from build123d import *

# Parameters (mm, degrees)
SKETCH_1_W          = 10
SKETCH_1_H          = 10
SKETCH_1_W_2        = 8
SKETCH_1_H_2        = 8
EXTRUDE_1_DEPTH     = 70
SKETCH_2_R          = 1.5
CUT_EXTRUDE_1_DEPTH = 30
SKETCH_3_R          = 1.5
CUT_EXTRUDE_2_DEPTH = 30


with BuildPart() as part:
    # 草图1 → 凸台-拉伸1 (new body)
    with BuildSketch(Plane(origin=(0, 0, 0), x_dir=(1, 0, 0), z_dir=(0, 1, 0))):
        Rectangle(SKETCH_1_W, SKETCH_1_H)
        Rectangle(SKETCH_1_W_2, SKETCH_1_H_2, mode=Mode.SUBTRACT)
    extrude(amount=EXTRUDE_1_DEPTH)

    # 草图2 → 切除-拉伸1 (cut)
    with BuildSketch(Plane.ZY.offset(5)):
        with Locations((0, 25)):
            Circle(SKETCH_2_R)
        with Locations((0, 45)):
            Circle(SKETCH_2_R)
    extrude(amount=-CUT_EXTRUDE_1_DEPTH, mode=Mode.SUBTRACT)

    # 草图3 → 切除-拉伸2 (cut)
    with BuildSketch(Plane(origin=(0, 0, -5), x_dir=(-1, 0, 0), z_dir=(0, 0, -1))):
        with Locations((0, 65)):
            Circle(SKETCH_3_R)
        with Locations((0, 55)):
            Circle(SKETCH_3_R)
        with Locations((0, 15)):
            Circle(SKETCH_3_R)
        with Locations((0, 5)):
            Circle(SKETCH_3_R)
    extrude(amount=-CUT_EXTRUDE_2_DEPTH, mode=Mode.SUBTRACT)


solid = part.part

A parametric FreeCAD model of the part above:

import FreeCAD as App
import Part
import Sketcher


def add_polygon(sketch, points):
    """Adds a closed chain of lines whose ends are joined by coincident constraints."""
    first, n = sketch.GeometryCount, len(points)
    for a, b in zip(points, points[1:] + points[:1]):
        sketch.addGeometry(Part.LineSegment(App.Vector(*a, 0), App.Vector(*b, 0)), False)
    for i in range(n):
        sketch.addConstraint(Sketcher.Constraint("Coincident", first + i, 2, first + (i + 1) % n, 1))

doc = App.newDocument("Part")
body = doc.addObject("PartDesign::Body", "Body")

sketch1 = doc.addObject("Sketcher::SketchObject", "Sketch")
body.addObject(sketch1)
sketch1.AttachmentSupport = (doc.XZ_Plane, [""])
sketch1.MapMode = "FlatFace"
add_polygon(sketch1, [(-5, -5), (-5, 5), (5, 5), (5, -5)])
add_polygon(sketch1, [(4, 4), (-4, 4), (-4, -4), (4, -4)])
sketch1.addConstraint([
    Sketcher.Constraint("Vertical", 0),
    Sketcher.Constraint("Horizontal", 1),
    Sketcher.Constraint("Vertical", 2),
    Sketcher.Constraint("Horizontal", 3),
    Sketcher.Constraint("Horizontal", 4),
    Sketcher.Constraint("Vertical", 5),
    Sketcher.Constraint("Horizontal", 6),
    Sketcher.Constraint("Vertical", 7),
    Sketcher.Constraint("Symmetric", 0, 2, 2, 2, -1, 1),
    Sketcher.Constraint("Symmetric", 4, 2, 6, 2, -1, 1),
    Sketcher.Constraint("Equal", 3, 0),
    Sketcher.Constraint("Equal", 6, 5),
    Sketcher.Constraint("DistanceX", 1, 1, 1, 2, 10.0),
    Sketcher.Constraint("DistanceX", 4, 2, 4, 1, 8.0),
])
pad1 = doc.addObject("PartDesign::Pad", "Pad")
body.addObject(pad1)
pad1.Profile = sketch1
pad1.Length = 70
pad1.Reversed = True

sketch2 = doc.addObject("Sketcher::SketchObject", "Sketch001")
body.addObject(sketch2)
sketch2.AttachmentSupport = (doc.YZ_Plane, [""])
sketch2.MapMode = "FlatFace"
sketch2.AttachmentOffset = App.Placement(App.Vector(0, 0, -5), App.Rotation())
sketch2.addGeometry([
    Part.Circle(App.Vector(25, 0, 0), App.Vector(0, 0, 1), 1.5),
    Part.Circle(App.Vector(45, 0, 0), App.Vector(0, 0, 1), 1.5),
], False)
sketch2.addConstraint([
    Sketcher.Constraint("Equal", 0, 1),
    Sketcher.Constraint("PointOnObject", 0, 3, -1),
    Sketcher.Constraint("PointOnObject", 1, 3, -1),
    Sketcher.Constraint("Diameter", 0, 3.0),
    Sketcher.Constraint("DistanceX", -1, 1, 0, 3, 25.0),
    Sketcher.Constraint("DistanceX", -1, 1, 1, 3, 45.0),
])
pocket1 = doc.addObject("PartDesign::Pocket", "Pocket")
body.addObject(pocket1)
pocket1.Profile = sketch2
pocket1.Length = 30
pocket1.Reversed = True

sketch3 = doc.addObject("Sketcher::SketchObject", "Sketch002")
body.addObject(sketch3)
sketch3.AttachmentSupport = (doc.XY_Plane, [""])
sketch3.MapMode = "FlatFace"
sketch3.AttachmentOffset = App.Placement(App.Vector(0, 0, -5), App.Rotation())
sketch3.addGeometry([
    Part.Circle(App.Vector(0, 65, 0), App.Vector(0, 0, 1), 1.5),
    Part.Circle(App.Vector(0, 55, 0), App.Vector(0, 0, 1), 1.5),
    Part.Circle(App.Vector(0, 15, 0), App.Vector(0, 0, 1), 1.5),
    Part.Circle(App.Vector(0, 5, 0), App.Vector(0, 0, 1), 1.5),
], False)
sketch3.addConstraint([
    Sketcher.Constraint("Equal", 0, 1),
    Sketcher.Constraint("Equal", 1, 2),
    Sketcher.Constraint("Equal", 2, 3),
    Sketcher.Constraint("PointOnObject", 0, 3, -2),
    Sketcher.Constraint("PointOnObject", 1, 3, -2),
    Sketcher.Constraint("PointOnObject", 2, 3, -2),
    Sketcher.Constraint("PointOnObject", 3, 3, -2),
    Sketcher.Constraint("Diameter", 0, 3.0),
    Sketcher.Constraint("DistanceY", -1, 1, 0, 3, 65.0),
    Sketcher.Constraint("DistanceY", -1, 1, 1, 3, 55.0),
    Sketcher.Constraint("DistanceY", -1, 1, 2, 3, 15.0),
    Sketcher.Constraint("DistanceY", -1, 1, 3, 3, 5.0),
])
pocket2 = doc.addObject("PartDesign::Pocket", "Pocket001")
body.addObject(pocket2)
pocket2.Profile = sketch3
pocket2.Length = 30
pocket2.Reversed = True

doc.recompute()
